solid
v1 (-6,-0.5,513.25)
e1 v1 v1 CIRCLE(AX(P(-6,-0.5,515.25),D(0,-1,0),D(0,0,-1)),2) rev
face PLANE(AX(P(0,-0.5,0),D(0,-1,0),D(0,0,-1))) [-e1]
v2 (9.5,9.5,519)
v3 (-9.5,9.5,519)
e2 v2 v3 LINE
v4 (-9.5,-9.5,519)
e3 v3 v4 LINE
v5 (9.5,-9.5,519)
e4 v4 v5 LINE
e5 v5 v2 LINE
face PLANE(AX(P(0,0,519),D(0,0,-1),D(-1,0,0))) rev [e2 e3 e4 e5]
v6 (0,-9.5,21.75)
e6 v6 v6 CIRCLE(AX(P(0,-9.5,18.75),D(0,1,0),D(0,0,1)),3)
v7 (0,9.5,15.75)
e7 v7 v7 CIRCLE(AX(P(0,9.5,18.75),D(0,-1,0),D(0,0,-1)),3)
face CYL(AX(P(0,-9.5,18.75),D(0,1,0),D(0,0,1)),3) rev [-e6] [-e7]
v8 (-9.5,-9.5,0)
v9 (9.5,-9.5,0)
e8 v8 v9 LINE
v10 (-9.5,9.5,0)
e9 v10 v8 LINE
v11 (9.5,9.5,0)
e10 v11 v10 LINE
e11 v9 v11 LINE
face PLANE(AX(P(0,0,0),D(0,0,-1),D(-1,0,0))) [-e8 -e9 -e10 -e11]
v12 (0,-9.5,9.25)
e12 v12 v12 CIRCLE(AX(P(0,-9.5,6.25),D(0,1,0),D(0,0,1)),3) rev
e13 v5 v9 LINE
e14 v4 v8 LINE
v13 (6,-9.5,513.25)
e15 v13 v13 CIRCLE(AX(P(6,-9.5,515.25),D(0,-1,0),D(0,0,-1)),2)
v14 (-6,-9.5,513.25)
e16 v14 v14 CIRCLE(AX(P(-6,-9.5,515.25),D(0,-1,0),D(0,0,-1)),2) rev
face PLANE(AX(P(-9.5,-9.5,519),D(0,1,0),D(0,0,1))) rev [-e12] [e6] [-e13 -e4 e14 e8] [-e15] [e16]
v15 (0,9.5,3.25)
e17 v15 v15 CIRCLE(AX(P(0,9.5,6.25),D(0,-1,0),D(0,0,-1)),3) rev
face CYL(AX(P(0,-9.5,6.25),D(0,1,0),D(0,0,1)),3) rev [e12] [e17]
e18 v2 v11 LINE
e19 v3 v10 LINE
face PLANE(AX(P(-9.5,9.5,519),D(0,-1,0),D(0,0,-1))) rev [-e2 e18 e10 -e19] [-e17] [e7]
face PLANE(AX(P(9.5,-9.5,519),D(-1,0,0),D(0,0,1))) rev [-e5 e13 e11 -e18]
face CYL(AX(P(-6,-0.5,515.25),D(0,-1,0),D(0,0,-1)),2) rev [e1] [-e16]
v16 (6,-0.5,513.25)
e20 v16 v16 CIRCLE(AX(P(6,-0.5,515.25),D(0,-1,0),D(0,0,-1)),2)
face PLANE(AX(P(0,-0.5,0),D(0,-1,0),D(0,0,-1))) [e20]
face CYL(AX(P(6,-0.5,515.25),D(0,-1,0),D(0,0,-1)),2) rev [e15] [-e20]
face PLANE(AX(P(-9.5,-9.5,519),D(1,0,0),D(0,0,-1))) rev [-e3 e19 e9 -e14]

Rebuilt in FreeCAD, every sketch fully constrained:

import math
import FreeCAD as App
import Part
import Sketcher

V = App.Vector
Q = App.Units.Quantity


def add_polygon(sketch, points):
    """Adds a closed chain of lines whose ends are joined by coincident constraints."""
    first, n = sketch.GeometryCount, len(points)
    for a, b in zip(points, points[1:] + points[:1]):
        sketch.addGeometry(Part.LineSegment(App.Vector(*a, 0), App.Vector(*b, 0)), False)
    for i in range(n):
        sketch.addConstraint(Sketcher.Constraint("Coincident", first + i, 2, first + (i + 1) % n, 1))

doc = App.newDocument("Part")
body = doc.addObject("PartDesign::Body", "Body")

# Sketch on XY plane
sketch1 = doc.addObject("Sketcher::SketchObject", "Sketch")
body.addObject(sketch1)
sketch1.AttachmentSupport = (doc.XY_Plane, [""])
sketch1.MapMode = "FlatFace"
add_polygon(sketch1, [(-10, 10), (-10, -10), (10, -10), (10, 10)])  # lines 0-3
sketch1.addConstraint(Sketcher.Constraint("Vertical", 0))
sketch1.addConstraint(Sketcher.Constraint("Horizontal", 1))
sketch1.addConstraint(Sketcher.Constraint("Vertical", 2))
sketch1.addConstraint(Sketcher.Constraint("Horizontal", 3))
sketch1.addConstraint(Sketcher.Constraint("Symmetric", 0, 2, 2, 2, -1, 1))
sketch1.addConstraint(Sketcher.Constraint("Equal", 3, 0))
sketch1.addConstraint(Sketcher.Constraint("DistanceX", 1, 1, 1, 2, Q("19 mm")))
pad1 = doc.addObject("PartDesign::Pad", "Pad")
body.addObject(pad1)
pad1.Profile = sketch1
pad1.Length = 519

# Sketch on XZ plane
sketch2 = doc.addObject("Sketcher::SketchObject", "Sketch001")
body.addObject(sketch2)
sketch2.AttachmentSupport = (doc.XZ_Plane, [""])
sketch2.MapMode = "FlatFace"
sketch2.AttachmentOffset = App.Placement(V(0, 0, 9.5), App.Rotation())
sketch2.addGeometry(Part.Circle(V(-6, 515.2, 0), V(0, 0, 1), 2), False)
sketch2.addGeometry(Part.Circle(V(6, 515.2, 0), V(0, 0, 1), 2), False)
sketch2.addConstraint(Sketcher.Constraint("Equal", 0, 1))
sketch2.addConstraint(Sketcher.Constraint("Symmetric", 0, 3, 1, 3, -2))
sketch2.addConstraint(Sketcher.Constraint("Diameter", 0, Q("4 mm")))
sketch2.addConstraint(Sketcher.Constraint("DistanceX", 0, 3, -1, 1, Q("6 mm")))
sketch2.addConstraint(Sketcher.Constraint("DistanceY", -1, 1, 0, 3, Q("515.25 mm")))
pocket1 = doc.addObject("PartDesign::Pocket", "Pocket")
body.addObject(pocket1)
pocket1.Profile = sketch2
pocket1.Length = 9

# Sketch on XZ plane
sketch3 = doc.addObject("Sketcher::SketchObject", "Sketch002")
body.addObject(sketch3)
sketch3.AttachmentSupport = (doc.XZ_Plane, [""])
sketch3.MapMode = "FlatFace"
sketch3.AttachmentOffset = App.Placement(V(0, 0, -9.5), App.Rotation())
sketch3.addGeometry(Part.ArcOfCircle(Part.Circle(V(0, 18.7, 0), V(0, 0, 1), 3), math.radians(-90), math.radians(0)), False)
sketch3.addGeometry(Part.ArcOfCircle(Part.Circle(V(0, 18.8, 0), V(0, 0, 1), 3), math.radians(90), math.radians(270)), False)
sketch3.addGeometry(Part.ArcOfCircle(Part.Circle(V(0, 18.8, 0), V(0, 0, 1), 3), math.radians(0), math.radians(90)), False)
sketch3.addGeometry(Part.ArcOfCircle(Part.Circle(V(0, 6.2, 0), V(0, 0, 1), 3), math.radians(-90), math.radians(0)), False)
sketch3.addGeometry(Part.ArcOfCircle(Part.Circle(V(0, 6.2, 0), V(0, 0, 1), 3), math.radians(90), math.radians(270)), False)
sketch3.addGeometry(Part.ArcOfCircle(Part.Circle(V(0, 6.3, 0), V(0, 0, 1), 3), math.radians(0), math.radians(90)), False)
sketch3.addConstraint(Sketcher.Constraint("Tangent", 0, 1, 1, 2))
sketch3.addConstraint(Sketcher.Constraint("Tangent", 1, 1, 2, 2))
sketch3.addConstraint(Sketcher.Constraint("Tangent", 2, 1, 0, 2))
sketch3.addConstraint(Sketcher.Constraint("Tangent", 3, 1, 4, 2))
sketch3.addConstraint(Sketcher.Constraint("Tangent", 4, 1, 5, 2))
sketch3.addConstraint(Sketcher.Constraint("Tangent", 5, 1, 3, 2))
sketch3.addConstraint(Sketcher.Constraint("Equal", 2, 3))
sketch3.addConstraint(Sketcher.Constraint("PointOnObject", 0, 3, -2))
sketch3.addConstraint(Sketcher.Constraint("PointOnObject", 3, 3, -2))
sketch3.addConstraint(Sketcher.Constraint("PointOnObject", 0, 1, -2))
sketch3.addConstraint(Sketcher.Constraint("PointOnObject", 1, 1, -2))
sketch3.addConstraint(Sketcher.Constraint("PointOnObject", 3, 1, -2))
sketch3.addConstraint(Sketcher.Constraint("PointOnObject", 4, 1, -2))
sketch3.addConstraint(Sketcher.Constraint("Horizontal", 1, 3, 2, 1))
sketch3.addConstraint(Sketcher.Constraint("Horizontal", 4, 3, 5, 1))
sketch3.addConstraint(Sketcher.Constraint("Radius", 0, Q("3 mm")))
sketch3.addConstraint(Sketcher.Constraint("DistanceY", 3, 3, 0, 3, Q("12.5 mm")))
sketch3.addConstraint(Sketcher.Constraint("DistanceY", -1, 1, 0, 3, Q("18.75 mm")))
pocket2 = doc.addObject("PartDesign::Pocket", "Pocket001")
body.addObject(pocket2)
pocket2.Profile = sketch3
pocket2.Type = "ThroughAll"
pocket2.Midplane = True

doc.recompute()
